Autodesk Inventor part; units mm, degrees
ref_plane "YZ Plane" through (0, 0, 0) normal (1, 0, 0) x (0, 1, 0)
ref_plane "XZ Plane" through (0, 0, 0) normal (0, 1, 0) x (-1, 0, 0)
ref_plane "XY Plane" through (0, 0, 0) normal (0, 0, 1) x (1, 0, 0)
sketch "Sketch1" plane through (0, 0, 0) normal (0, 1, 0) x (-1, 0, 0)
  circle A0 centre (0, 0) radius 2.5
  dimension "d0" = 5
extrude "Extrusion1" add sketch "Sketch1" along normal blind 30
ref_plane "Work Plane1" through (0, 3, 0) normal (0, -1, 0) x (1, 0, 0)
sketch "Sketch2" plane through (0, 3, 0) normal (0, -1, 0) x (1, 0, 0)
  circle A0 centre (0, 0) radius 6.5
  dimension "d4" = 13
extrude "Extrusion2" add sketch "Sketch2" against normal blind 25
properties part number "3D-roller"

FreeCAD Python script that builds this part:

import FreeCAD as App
import Part
import Sketcher

V = App.Vector
Q = App.Units.Quantity

doc = App.newDocument("Part")
body = doc.addObject("PartDesign::Body", "Body")

# Sketch on XZ plane
sketch1 = body.newObject("Sketcher::SketchObject", "Sketch")
sketch1.AttachmentSupport = (doc.getObject("XZ_Plane"), [""])
sketch1.MapMode = "FlatFace"
sketch1.addGeometry(Part.Circle(V(0, 0, 0), V(0, 0, 1), 2.5), False)
sketch1.addConstraint(Sketcher.Constraint("Coincident", 0, 3, -1, 1))
sketch1.addConstraint(Sketcher.Constraint("Diameter", 0, Q("5 mm")))
pad1 = body.newObject("PartDesign::Pad", "Pad")
pad1.Profile = sketch1
pad1.Length = 30
pad1.Reversed = True

# Sketch on XZ plane
sketch2 = body.newObject("Sketcher::SketchObject", "Sketch001")
sketch2.AttachmentSupport = (doc.getObject("XZ_Plane"), [""])
sketch2.MapMode = "FlatFace"
sketch2.AttachmentOffset = App.Placement(V(0, 0, -3), App.Rotation())
sketch2.addGeometry(Part.Circle(V(0, 0, 0), V(0, 0, 1), 6), False)
sketch2.addConstraint(Sketcher.Constraint("Coincident", 0, 3, -1, 1))
sketch2.addConstraint(Sketcher.Constraint("Diameter", 0, Q("13 mm")))
pad2 = body.newObject("PartDesign::Pad", "Pad001")
pad2.Profile = sketch2
pad2.Length = 25
pad2.Reversed = True

doc.recompute()
